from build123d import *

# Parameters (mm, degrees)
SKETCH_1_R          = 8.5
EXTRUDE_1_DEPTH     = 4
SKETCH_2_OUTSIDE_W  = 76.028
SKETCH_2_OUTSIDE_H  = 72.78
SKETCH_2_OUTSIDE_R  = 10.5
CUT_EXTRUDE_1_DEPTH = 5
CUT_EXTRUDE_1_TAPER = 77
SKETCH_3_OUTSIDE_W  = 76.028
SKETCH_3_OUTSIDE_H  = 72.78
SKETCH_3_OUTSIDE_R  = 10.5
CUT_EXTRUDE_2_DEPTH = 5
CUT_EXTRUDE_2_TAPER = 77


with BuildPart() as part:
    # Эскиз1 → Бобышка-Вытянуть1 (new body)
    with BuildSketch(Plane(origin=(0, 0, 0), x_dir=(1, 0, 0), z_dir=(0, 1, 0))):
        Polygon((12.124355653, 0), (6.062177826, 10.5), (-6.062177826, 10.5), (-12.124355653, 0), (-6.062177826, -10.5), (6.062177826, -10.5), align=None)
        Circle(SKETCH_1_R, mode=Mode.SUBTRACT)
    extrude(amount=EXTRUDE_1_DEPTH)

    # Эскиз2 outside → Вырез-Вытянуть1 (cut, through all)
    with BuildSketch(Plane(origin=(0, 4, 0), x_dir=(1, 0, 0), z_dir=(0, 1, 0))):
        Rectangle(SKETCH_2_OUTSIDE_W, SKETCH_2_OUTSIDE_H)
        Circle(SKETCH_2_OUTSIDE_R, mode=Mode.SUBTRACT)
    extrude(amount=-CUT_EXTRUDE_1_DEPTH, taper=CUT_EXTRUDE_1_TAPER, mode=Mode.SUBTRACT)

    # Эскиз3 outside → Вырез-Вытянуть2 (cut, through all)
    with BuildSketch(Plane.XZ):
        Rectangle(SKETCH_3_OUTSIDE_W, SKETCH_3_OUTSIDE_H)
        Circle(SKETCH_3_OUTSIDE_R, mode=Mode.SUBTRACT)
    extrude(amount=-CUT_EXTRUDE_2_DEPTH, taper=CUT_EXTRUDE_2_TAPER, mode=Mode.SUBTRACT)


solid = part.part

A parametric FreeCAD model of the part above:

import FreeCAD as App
import Part
import Sketcher
from FreeCAD import Vector
Q = App.Units.Quantity


def add_polygon(sketch, points):
    """Adds a closed chain of lines whose ends are joined by coincident constraints."""
    first, n = sketch.GeometryCount, len(points)
    for a, b in zip(points, points[1:] + points[:1]):
        sketch.addGeometry(Part.LineSegment(App.Vector(*a, 0), App.Vector(*b, 0)), False)
    for i in range(n):
        sketch.addConstraint(Sketcher.Constraint("Coincident", first + i, 2, first + (i + 1) % n, 1))

doc = App.newDocument("Part")
body = doc.addObject("PartDesign::Body", "Body")

# Sketch on XZ plane
sketch1 = body.newObject("Sketcher::SketchObject", "Sketch")
sketch1.AttachmentSupport = (doc.getObject("XZ_Plane"), [""])
sketch1.MapMode = "FlatFace"
add_polygon(sketch1, [(12.124356, 0), (6.062178, -10.5), (-6.062178, -10.5), (-12.124356, 0), (-6.062178, 10.5), (6.062178, 10.5)])  # lines 0-5
sketch1.addGeometry(Part.Circle(Vector(0, 0, 0), Vector(0, 0, 1), 8.5), False)  # 6
sketch1.addConstraint(Sketcher.Constraint("Horizontal", 1))
sketch1.addConstraint(Sketcher.Constraint("Horizontal", 4))
sketch1.addConstraint(Sketcher.Constraint("Coincident", 6, 3, -1, 1))
sketch1.addConstraint(Sketcher.Constraint("Symmetric", 0, 2, 3, 2, -1, 1))
sketch1.addConstraint(Sketcher.Constraint("Symmetric", 2, 2, 5, 2, -1, 1))
sketch1.addConstraint(Sketcher.Constraint("PointOnObject", 2, 2, -1))
sketch1.addConstraint(Sketcher.Constraint("Parallel", 2, 5))
sketch1.addConstraint(Sketcher.Constraint("Vertical", 1, 2, 3, 2))
sketch1.addConstraint(Sketcher.Constraint("Diameter", 6, 17.0))
sketch1.addConstraint(Sketcher.Constraint("Angle", 0, Q("-120 deg")))
sketch1.addConstraint(Sketcher.Constraint("DistanceY", 1, 2, 3, 2, 21.0))
sketch1.addConstraint(Sketcher.Constraint("DistanceX", 1, 2, 1, 1, 12.124356))
pad1 = body.newObject("PartDesign::Pad", "Pad")
pad1.Profile = sketch1
pad1.Length = 4
pad1.Reversed = True

# Sketch on XZ plane
sketch2 = body.newObject("Sketcher::SketchObject", "Sketch001")
sketch2.AttachmentSupport = (doc.getObject("XZ_Plane"), [""])
sketch2.MapMode = "FlatFace"
sketch2.AttachmentOffset = App.Placement(Vector(0, 0, -4), App.Rotation())
add_polygon(sketch2, [(-38.014, -36.39), (-38.014, 36.39), (38.014, 36.39), (38.014, -36.39)])  # lines 0-3
sketch2.addGeometry(Part.Circle(Vector(0, 0, 0), Vector(0, 0, 1), 10.5), False)  # 4
sketch2.addConstraint(Sketcher.Constraint("Vertical", 0))
sketch2.addConstraint(Sketcher.Constraint("Horizontal", 1))
sketch2.addConstraint(Sketcher.Constraint("Vertical", 2))
sketch2.addConstraint(Sketcher.Constraint("Horizontal", 3))
sketch2.addConstraint(Sketcher.Constraint("Coincident", 4, 3, -1, 1))
sketch2.addConstraint(Sketcher.Constraint("Symmetric", 0, 2, 2, 2, -1, 1))
sketch2.addConstraint(Sketcher.Constraint("Diameter", 4, 21.0))
sketch2.addConstraint(Sketcher.Constraint("DistanceY", 0, 1, 0, 2, 72.78))
sketch2.addConstraint(Sketcher.Constraint("DistanceX", 1, 1, 1, 2, 76.028))
pocket1 = body.newObject("PartDesign::Pocket", "Pocket")
pocket1.Profile = sketch2
pocket1.Length = 5
pocket1.Reversed = True
pocket1.TaperAngle = 77

# Sketch on XZ plane
sketch3 = body.newObject("Sketcher::SketchObject", "Sketch002")
sketch3.AttachmentSupport = (doc.getObject("XZ_Plane"), [""])
sketch3.MapMode = "FlatFace"
add_polygon(sketch3, [(-38.014, 36.39), (-38.014, -36.39), (38.014, -36.39), (38.014, 36.39)])  # lines 0-3
sketch3.addGeometry(Part.Circle(Vector(0, 0, 0), Vector(0, 0, 1), 10.5), False)  # 4
sketch3.addConstraint(Sketcher.Constraint("Vertical", 0))
sketch3.addConstraint(Sketcher.Constraint("Horizontal", 1))
sketch3.addConstraint(Sketcher.Constraint("Vertical", 2))
sketch3.addConstraint(Sketcher.Constraint("Horizontal", 3))
sketch3.addConstraint(Sketcher.Constraint("Coincident", 4, 3, -1, 1))
sketch3.addConstraint(Sketcher.Constraint("Symmetric", 0, 2, 2, 2, -1, 1))
sketch3.addConstraint(Sketcher.Constraint("Diameter", 4, 21.0))
sketch3.addConstraint(Sketcher.Constraint("DistanceY", 0, 2, 0, 1, 72.78))
sketch3.addConstraint(Sketcher.Constraint("DistanceX", 1, 1, 1, 2, 76.028))
pocket2 = body.newObject("PartDesign::Pocket", "Pocket001")
pocket2.Profile = sketch3
pocket2.Length = 5
pocket2.TaperAngle = 77

doc.recompute()
